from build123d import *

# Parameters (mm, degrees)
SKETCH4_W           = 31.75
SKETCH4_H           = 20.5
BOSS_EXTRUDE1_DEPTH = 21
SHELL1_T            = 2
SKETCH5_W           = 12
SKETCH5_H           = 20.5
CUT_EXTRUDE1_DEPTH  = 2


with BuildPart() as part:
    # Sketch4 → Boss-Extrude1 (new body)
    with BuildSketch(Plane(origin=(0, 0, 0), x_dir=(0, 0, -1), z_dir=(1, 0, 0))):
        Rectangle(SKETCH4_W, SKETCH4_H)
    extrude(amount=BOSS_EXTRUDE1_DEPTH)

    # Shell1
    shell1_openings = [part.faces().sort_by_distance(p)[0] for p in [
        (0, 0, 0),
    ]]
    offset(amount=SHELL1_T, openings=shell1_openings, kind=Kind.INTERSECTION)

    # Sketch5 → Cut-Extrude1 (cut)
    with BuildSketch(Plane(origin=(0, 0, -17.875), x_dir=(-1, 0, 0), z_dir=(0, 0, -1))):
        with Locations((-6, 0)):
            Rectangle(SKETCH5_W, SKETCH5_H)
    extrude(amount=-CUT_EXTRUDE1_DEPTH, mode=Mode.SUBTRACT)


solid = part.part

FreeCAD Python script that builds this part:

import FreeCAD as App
import Part
import Sketcher
Q = App.Units.Quantity


def faces_at(feature, points):
    """Names of the faces that lie closest to the given points."""
    faces = feature.Shape.Faces
    near = lambda p: min(range(len(faces)), key=lambda i: faces[i].distToShape(Part.Vertex(*p))[0])
    return sorted({f"Face{near(p) + 1}" for p in points})


def add_polygon(sketch, points):
    """Adds a closed chain of lines whose ends are joined by coincident constraints."""
    first, n = sketch.GeometryCount, len(points)
    for a, b in zip(points, points[1:] + points[:1]):
        sketch.addGeometry(Part.LineSegment(App.Vector(*a, 0), App.Vector(*b, 0)), False)
    for i in range(n):
        sketch.addConstraint(Sketcher.Constraint("Coincident", first + i, 2, first + (i + 1) % n, 1))

doc = App.newDocument("Part")
body = doc.addObject("PartDesign::Body", "Body")

# Sketch on YZ plane
sketch1 = body.newObject("Sketcher::SketchObject", "Sketch")
sketch1.AttachmentSupport = (doc.getObject("YZ_Plane"), [""])
sketch1.MapMode = "FlatFace"
add_polygon(sketch1, [(10, 16), (-10, 16), (-10, -16), (10, -16)])  # lines 0-3
sketch1.addConstraint([
    Sketcher.Constraint("Horizontal", 0),
    Sketcher.Constraint("Vertical", 1),
    Sketcher.Constraint("Horizontal", 2),
    Sketcher.Constraint("Vertical", 3),
    Sketcher.Constraint("Symmetric", 0, 2, 2, 2, -1, 1),
    Sketcher.Constraint("DistanceX", 0, 2, 0, 1, Q("20.5 mm")),
    Sketcher.Constraint("DistanceY", 1, 2, 1, 1, Q("31.75 mm")),
])
pad1 = body.newObject("PartDesign::Pad", "Pad")
pad1.Profile = sketch1
pad1.Length = 21
doc.recompute()

thickness = body.newObject("PartDesign::Thickness", "Thickness")
thickness.Base = (pad1, faces_at(pad1, [(0, 0, 0)]))
thickness.Value = 2
thickness.Reversed = False
thickness.Join = "Intersection"

# Sketch on XY plane
sketch2 = body.newObject("Sketcher::SketchObject", "Sketch001")
sketch2.AttachmentSupport = (doc.getObject("XY_Plane"), [""])
sketch2.MapMode = "FlatFace"
sketch2.AttachmentOffset = App.Placement(App.Vector(0, 0, -17.875), App.Rotation())
add_polygon(sketch2, [(12, 10), (12, -10), (0, -10), (0, 10)])  # lines 0-3
sketch2.addConstraint([
    Sketcher.Constraint("Vertical", 0),
    Sketcher.Constraint("Horizontal", 1),
    Sketcher.Constraint("Vertical", 2),
    Sketcher.Constraint("Horizontal", 3),
    Sketcher.Constraint("Symmetric", 1, 2, 2, 2, -1, 1),
    Sketcher.Constraint("DistanceX", 1, 2, 1, 1, Q("12 mm")),
    Sketcher.Constraint("DistanceY", 0, 2, 0, 1, Q("20.5 mm")),
])
pocket1 = body.newObject("PartDesign::Pocket", "Pocket")
pocket1.Profile = sketch2
pocket1.Length = 2
pocket1.Reversed = True

doc.recompute()
